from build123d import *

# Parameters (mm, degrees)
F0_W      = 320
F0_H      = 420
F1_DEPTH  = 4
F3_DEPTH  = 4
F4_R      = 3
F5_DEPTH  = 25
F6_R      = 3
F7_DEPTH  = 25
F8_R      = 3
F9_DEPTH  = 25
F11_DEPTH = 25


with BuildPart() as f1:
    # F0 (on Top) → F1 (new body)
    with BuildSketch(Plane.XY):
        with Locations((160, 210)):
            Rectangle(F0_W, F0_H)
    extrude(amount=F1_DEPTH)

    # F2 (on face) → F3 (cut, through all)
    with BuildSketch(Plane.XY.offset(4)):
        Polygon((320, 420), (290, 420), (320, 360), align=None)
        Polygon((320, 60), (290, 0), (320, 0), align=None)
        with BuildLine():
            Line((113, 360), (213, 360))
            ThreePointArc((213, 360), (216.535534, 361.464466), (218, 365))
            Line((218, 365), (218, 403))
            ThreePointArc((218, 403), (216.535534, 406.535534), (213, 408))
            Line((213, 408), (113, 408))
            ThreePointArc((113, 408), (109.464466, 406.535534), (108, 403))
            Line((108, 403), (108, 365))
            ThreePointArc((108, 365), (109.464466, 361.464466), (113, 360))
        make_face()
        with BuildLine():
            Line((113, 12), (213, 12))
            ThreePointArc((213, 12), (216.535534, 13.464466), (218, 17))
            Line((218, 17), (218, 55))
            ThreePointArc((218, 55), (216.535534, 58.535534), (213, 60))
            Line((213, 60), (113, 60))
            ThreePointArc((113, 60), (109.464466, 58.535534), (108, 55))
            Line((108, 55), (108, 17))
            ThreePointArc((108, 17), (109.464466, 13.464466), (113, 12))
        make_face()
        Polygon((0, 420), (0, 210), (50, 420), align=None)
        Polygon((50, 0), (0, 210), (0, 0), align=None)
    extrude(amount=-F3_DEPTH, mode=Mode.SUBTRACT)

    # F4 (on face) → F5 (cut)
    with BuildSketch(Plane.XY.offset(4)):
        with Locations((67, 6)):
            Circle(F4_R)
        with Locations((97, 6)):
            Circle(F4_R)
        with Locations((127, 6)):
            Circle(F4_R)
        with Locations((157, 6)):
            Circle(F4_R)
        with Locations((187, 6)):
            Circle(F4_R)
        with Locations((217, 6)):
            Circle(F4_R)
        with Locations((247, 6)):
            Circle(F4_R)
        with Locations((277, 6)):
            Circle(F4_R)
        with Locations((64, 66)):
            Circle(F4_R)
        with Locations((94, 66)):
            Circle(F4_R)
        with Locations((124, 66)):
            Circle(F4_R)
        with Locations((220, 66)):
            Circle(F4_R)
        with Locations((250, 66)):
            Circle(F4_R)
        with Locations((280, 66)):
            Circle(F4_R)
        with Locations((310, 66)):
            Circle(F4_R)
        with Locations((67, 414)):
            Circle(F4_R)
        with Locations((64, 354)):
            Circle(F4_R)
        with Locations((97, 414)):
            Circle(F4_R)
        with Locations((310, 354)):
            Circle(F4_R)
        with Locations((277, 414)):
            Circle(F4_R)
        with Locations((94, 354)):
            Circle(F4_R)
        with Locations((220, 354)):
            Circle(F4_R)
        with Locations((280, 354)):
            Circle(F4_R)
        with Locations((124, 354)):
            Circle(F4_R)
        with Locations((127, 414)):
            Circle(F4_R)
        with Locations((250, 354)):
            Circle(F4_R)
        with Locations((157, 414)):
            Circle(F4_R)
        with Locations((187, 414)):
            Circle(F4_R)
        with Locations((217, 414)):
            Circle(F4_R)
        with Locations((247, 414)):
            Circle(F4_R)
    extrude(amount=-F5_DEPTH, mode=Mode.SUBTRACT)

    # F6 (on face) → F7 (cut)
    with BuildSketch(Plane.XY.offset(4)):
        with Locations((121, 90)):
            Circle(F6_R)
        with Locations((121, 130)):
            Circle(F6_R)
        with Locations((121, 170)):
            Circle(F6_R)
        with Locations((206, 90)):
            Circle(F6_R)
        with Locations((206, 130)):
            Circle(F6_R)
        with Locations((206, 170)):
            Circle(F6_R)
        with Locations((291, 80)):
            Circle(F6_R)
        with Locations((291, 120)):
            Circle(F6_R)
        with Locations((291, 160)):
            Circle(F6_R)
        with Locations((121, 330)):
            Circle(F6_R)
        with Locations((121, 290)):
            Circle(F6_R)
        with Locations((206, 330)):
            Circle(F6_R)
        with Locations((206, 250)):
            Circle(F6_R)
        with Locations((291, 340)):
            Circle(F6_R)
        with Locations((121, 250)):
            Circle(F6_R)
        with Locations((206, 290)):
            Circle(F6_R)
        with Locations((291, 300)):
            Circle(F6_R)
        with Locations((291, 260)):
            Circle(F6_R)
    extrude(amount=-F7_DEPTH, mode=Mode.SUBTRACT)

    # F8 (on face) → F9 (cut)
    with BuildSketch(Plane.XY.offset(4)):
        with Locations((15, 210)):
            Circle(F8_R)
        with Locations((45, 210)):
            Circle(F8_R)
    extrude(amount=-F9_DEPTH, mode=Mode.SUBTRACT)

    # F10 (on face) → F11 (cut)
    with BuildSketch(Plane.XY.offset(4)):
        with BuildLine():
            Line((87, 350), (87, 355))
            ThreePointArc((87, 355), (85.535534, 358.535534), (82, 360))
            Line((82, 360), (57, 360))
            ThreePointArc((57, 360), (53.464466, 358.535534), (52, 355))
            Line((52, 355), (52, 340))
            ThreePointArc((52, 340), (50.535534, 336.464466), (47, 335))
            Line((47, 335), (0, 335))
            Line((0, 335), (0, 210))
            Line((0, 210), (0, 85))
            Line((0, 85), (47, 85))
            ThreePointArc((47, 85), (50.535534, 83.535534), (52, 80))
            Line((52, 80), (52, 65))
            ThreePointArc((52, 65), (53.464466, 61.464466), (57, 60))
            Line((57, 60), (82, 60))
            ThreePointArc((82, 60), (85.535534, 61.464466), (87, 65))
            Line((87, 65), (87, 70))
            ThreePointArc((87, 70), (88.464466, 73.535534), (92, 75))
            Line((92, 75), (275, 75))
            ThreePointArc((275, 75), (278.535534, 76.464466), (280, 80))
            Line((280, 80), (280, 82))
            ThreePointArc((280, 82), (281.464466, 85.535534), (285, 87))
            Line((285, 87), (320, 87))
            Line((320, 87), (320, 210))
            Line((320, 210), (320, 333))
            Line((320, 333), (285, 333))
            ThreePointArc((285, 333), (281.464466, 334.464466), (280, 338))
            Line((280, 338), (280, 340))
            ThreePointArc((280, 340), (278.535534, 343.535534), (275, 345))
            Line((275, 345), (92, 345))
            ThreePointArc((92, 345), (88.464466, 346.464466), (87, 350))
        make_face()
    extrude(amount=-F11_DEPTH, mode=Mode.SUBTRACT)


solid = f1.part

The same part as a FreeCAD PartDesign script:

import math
import FreeCAD as App
import Part
import Sketcher

V = App.Vector
Q = App.Units.Quantity

doc = App.newDocument("Part")
params = doc.addObject("Spreadsheet::Sheet", "Params")
for row, (alias, value) in enumerate([
    ("sketch1_width", "320 mm"),
    ("sketch1_height", "420 mm"),
    ("pad1_length", "4 mm"),
    ("sketch2_radius", "5 mm"),
    ("sketch2_width", "30 mm"),
    ("sketch2_width2", "100 mm"),
    ("sketch2_width3", "50 mm"),
    ("sketch2_height", "60 mm"),
    ("sketch3_diameter", "6 mm"),
    ("pocket2_length", "25 mm"),
    ("sketch4_diameter", "6 mm"),
    ("pocket3_length", "25 mm"),
    ("sketch5_diameter", "6 mm"),
    ("pocket4_length", "25 mm"),
    ("sketch6_radius", "5 mm"),
    ("sketch6_width", "25 mm"),
    ("sketch6_width2", "47 mm"),
    ("sketch6_width3", "183 mm"),
    ("sketch6_width4", "35 mm"),
    ("pocket5_length", "25 mm"),
], start=1):
    params.set(f"A{row}", alias)
    params.set(f"B{row}", "=" + value)
    params.setAlias(f"B{row}", alias)

body = doc.addObject("PartDesign::Body", "Body")
body.AllowCompound = True

sketch1 = doc.addObject("Sketcher::SketchObject", "Sketch")
body.addObject(sketch1)
sketch1.AttachmentSupport = (doc.XY_Plane, [""])
sketch1.MapMode = "FlatFace"
sketch1.addGeometry([
    Part.LineSegment(V(0, 420, 0), V(0, 0, 0)),
    Part.LineSegment(V(0, 0, 0), V(320, 0, 0)),
    Part.LineSegment(V(320, 0, 0), V(320, 420, 0)),
    Part.LineSegment(V(320, 420, 0), V(0, 420, 0)),
], False)
sketch1.addConstraint([
    Sketcher.Constraint("Coincident", 0, 2, 1, 1),
    Sketcher.Constraint("Coincident", 1, 2, 2, 1),
    Sketcher.Constraint("Coincident", 2, 2, 3, 1),
    Sketcher.Constraint("Coincident", 3, 2, 0, 1),
    Sketcher.Constraint("Vertical", 0),
    Sketcher.Constraint("Horizontal", 1),
    Sketcher.Constraint("Vertical", 2),
    Sketcher.Constraint("Horizontal", 3),
    Sketcher.Constraint("Coincident", 0, 2, -1, 1),
    Sketcher.Constraint("DistanceX", 1, 1, 1, 2, Q("320 mm")),
    Sketcher.Constraint("DistanceY", 0, 2, 0, 1, Q("420 mm")),
])
sketch1.setExpression("Constraints[9]", "Params.sketch1_width")
sketch1.setExpression("Constraints[10]", "Params.sketch1_height")
pad1 = doc.addObject("PartDesign::Pad", "Pad")
body.addObject(pad1)
pad1.Profile = sketch1
pad1.setExpression("Length", "Params.pad1_length")

sketch2 = doc.addObject("Sketcher::SketchObject", "Sketch001")
body.addObject(sketch2)
sketch2.AttachmentSupport = (doc.XY_Plane, [""])
sketch2.MapMode = "FlatFace"
sketch2.AttachmentOffset = App.Placement(V(0, 0, 4), App.Rotation())
sketch2.addGeometry([
    Part.LineSegment(V(320, 420, 0), V(290, 420, 0)),
    Part.LineSegment(V(290, 420, 0), V(320, 360, 0)),
    Part.LineSegment(V(320, 360, 0), V(320, 420, 0)),
    Part.LineSegment(V(320, 60, 0), V(290, 0, 0)),
    Part.LineSegment(V(290, 0, 0), V(320, 0, 0)),
    Part.LineSegment(V(320, 0, 0), V(320, 60, 0)),
    Part.LineSegment(V(113, 360, 0), V(213, 360, 0)),
    Part.ArcOfCircle(Part.Circle(V(213, 365, 0), V(0, 0, 1), 5), math.radians(-90), math.radians(0)),
    Part.LineSegment(V(218, 365, 0), V(218, 403, 0)),
    Part.ArcOfCircle(Part.Circle(V(213, 403, 0), V(0, 0, 1), 5), math.radians(0), math.radians(90)),
    Part.LineSegment(V(213, 408, 0), V(113, 408, 0)),
    Part.ArcOfCircle(Part.Circle(V(113, 403, 0), V(0, 0, 1), 5), math.radians(90), math.radians(180)),
    Part.LineSegment(V(108, 403, 0), V(108, 365, 0)),
    Part.ArcOfCircle(Part.Circle(V(113, 365, 0), V(0, 0, 1), 5), math.radians(180), math.radians(270)),
    Part.LineSegment(V(113, 12, 0), V(213, 12, 0)),
    Part.ArcOfCircle(Part.Circle(V(213, 17, 0), V(0, 0, 1), 5), math.radians(-90), math.radians(0)),
    Part.LineSegment(V(218, 17, 0), V(218, 55, 0)),
    Part.ArcOfCircle(Part.Circle(V(213, 55, 0), V(0, 0, 1), 5), math.radians(0), math.radians(90)),
    Part.LineSegment(V(213, 60, 0), V(113, 60, 0)),
    Part.ArcOfCircle(Part.Circle(V(113, 55, 0), V(0, 0, 1), 5), math.radians(90), math.radians(180)),
    Part.LineSegment(V(108, 55, 0), V(108, 17, 0)),
    Part.ArcOfCircle(Part.Circle(V(113, 17, 0), V(0, 0, 1), 5), math.radians(180), math.radians(270)),
    Part.LineSegment(V(0, 420, 0), V(0, 210, 0)),
    Part.LineSegment(V(0, 210, 0), V(50, 420, 0)),
    Part.LineSegment(V(50, 420, 0), V(0, 420, 0)),
    Part.LineSegment(V(50, 0, 0), V(0, 210, 0)),
    Part.LineSegment(V(0, 210, 0), V(0, 0, 0)),
    Part.LineSegment(V(0, 0, 0), V(50, 0, 0)),
], False)
sketch2.addConstraint([
    Sketcher.Constraint("Coincident", 0, 2, 1, 1),
    Sketcher.Constraint("Coincident", 1, 2, 2, 1),
    Sketcher.Constraint("Coincident", 2, 2, 0, 1),
    Sketcher.Constraint("Coincident", 3, 2, 4, 1),
    Sketcher.Constraint("Coincident", 4, 2, 5, 1),
    Sketcher.Constraint("Coincident", 5, 2, 3, 1),
    Sketcher.Constraint("Tangent", 6, 2, 7, 1),
    Sketcher.Constraint("Tangent", 7, 2, 8, 1),
    Sketcher.Constraint("Tangent", 8, 2, 9, 1),
    Sketcher.Constraint("Tangent", 9, 2, 10, 1),
    Sketcher.Constraint("Tangent", 10, 2, 11, 1),
    Sketcher.Constraint("Tangent", 11, 2, 12, 1),
    Sketcher.Constraint("Tangent", 12, 2, 13, 1),
    Sketcher.Constraint("Tangent", 13, 2, 6, 1),
    Sketcher.Constraint("Tangent", 14, 2, 15, 1),
    Sketcher.Constraint("Tangent", 15, 2, 16, 1),
    Sketcher.Constraint("Tangent", 16, 2, 17, 1),
    Sketcher.Constraint("Tangent", 17, 2, 18, 1),
    Sketcher.Constraint("Tangent", 18, 2, 19, 1),
    Sketcher.Constraint("Tangent", 19, 2, 20, 1),
    Sketcher.Constraint("Tangent", 20, 2, 21, 1),
    Sketcher.Constraint("Tangent", 21, 2, 14, 1),
    Sketcher.Constraint("Coincident", 22, 2, 23, 1),
    Sketcher.Constraint("Coincident", 23, 2, 24, 1),
    Sketcher.Constraint("Coincident", 24, 2, 22, 1),
    Sketcher.Constraint("Coincident", 25, 2, 26, 1),
    Sketcher.Constraint("Coincident", 26, 2, 27, 1),
    Sketcher.Constraint("Coincident", 27, 2, 25, 1),
    Sketcher.Constraint("Horizontal", 0),
    Sketcher.Constraint("Vertical", 2),
    Sketcher.Constraint("Horizontal", 4),
    Sketcher.Constraint("Vertical", 5),
    Sketcher.Constraint("Horizontal", 6),
    Sketcher.Constraint("Vertical", 8),
    Sketcher.Constraint("Horizontal", 10),
    Sketcher.Constraint("Vertical", 12),
    Sketcher.Constraint("Horizontal", 14),
    Sketcher.Constraint("Vertical", 16),
    Sketcher.Constraint("Horizontal", 18),
    Sketcher.Constraint("Vertical", 20),
    Sketcher.Constraint("Vertical", 22),
    Sketcher.Constraint("Horizontal", 24),
    Sketcher.Constraint("Vertical", 26),
    Sketcher.Constraint("Horizontal", 27),
    Sketcher.Constraint("Coincident", 26, 2, -1, 1),
    Sketcher.Constraint("Coincident", 25, 2, 22, 2),
    Sketcher.Constraint("Equal", 7, 9),
    Sketcher.Constraint("Equal", 9, 11),
    Sketcher.Constraint("Equal", 11, 13),
    Sketcher.Constraint("Equal", 13, 15),
    Sketcher.Constraint("Equal", 15, 17),
    Sketcher.Constraint("Equal", 17, 19),
    Sketcher.Constraint("Equal", 19, 21),
    Sketcher.Constraint("PointOnObject", 3, 2, -1),
    Sketcher.Constraint("Horizontal", 1, 2, 6, 2),
    Sketcher.Constraint("Horizontal", 5, 2, 17, 2),
    Sketcher.Constraint("Horizontal", 2, 2, 23, 2),
    Sketcher.Constraint("Vertical", 9, 3, 15, 3),
    Sketcher.Constraint("Vertical", 13, 3, 19, 3),
    Sketcher.Constraint("Vertical", 0, 2, 3, 2),
    Sketcher.Constraint("Vertical", 2, 2, 4, 2),
    Sketcher.Constraint("Vertical", 23, 2, 27, 2),
    Sketcher.Constraint("Equal", 2, 5),
    Sketcher.Constraint("Equal", 12, 16),
    Sketcher.Constraint("Equal", 22, 26),
    Sketcher.Constraint("Radius", 7, Q("5 mm")),
    Sketcher.Constraint("DistanceX", 0, 2, 0, 1, Q("30 mm")),
    Sketcher.Constraint("DistanceX", 6, 1, 6, 2, Q("100 mm")),
    Sketcher.Constraint("DistanceX", 24, 2, 24, 1, Q("50 mm")),
    Sketcher.Constraint("DistanceY", 2, 1, 2, 2, Q("60 mm")),
    Sketcher.Constraint("DistanceY", 8, 1, 8, 2, Q("38 mm")),
    Sketcher.Constraint("DistanceY", 22, 2, 22, 1, Q("210 mm")),
    Sketcher.Constraint("DistanceX", -1, 1, 7, 3, Q("213 mm")),
    Sketcher.Constraint("DistanceX", -1, 1, 0, 2, Q("290 mm")),
])
sketch2.setExpression("Constraints[65]", "Params.sketch2_radius")
sketch2.setExpression("Constraints[66]", "Params.sketch2_width")
sketch2.setExpression("Constraints[67]", "Params.sketch2_width2")
sketch2.setExpression("Constraints[68]", "Params.sketch2_width3")
sketch2.setExpression("Constraints[69]", "Params.sketch2_height")
pocket1 = doc.addObject("PartDesign::Pocket", "Pocket")
body.addObject(pocket1)
pocket1.Profile = sketch2
pocket1.Type = "ThroughAll"

sketch3 = doc.addObject("Sketcher::SketchObject", "Sketch002")
body.addObject(sketch3)
sketch3.AttachmentSupport = (doc.XY_Plane, [""])
sketch3.MapMode = "FlatFace"
sketch3.AttachmentOffset = App.Placement(V(0, 0, 4), App.Rotation())
sketch3.addGeometry([
    Part.Circle(V(67, 6, 0), V(0, 0, 1), 3),
    Part.Circle(V(97, 6, 0), V(0, 0, 1), 3),
    Part.Circle(V(127, 6, 0), V(0, 0, 1), 3),
    Part.Circle(V(157, 6, 0), V(0, 0, 1), 3),
    Part.Circle(V(187, 6, 0), V(0, 0, 1), 3),
    Part.Circle(V(217, 6, 0), V(0, 0, 1), 3),
    Part.Circle(V(247, 6, 0), V(0, 0, 1), 3),
    Part.Circle(V(277, 6, 0), V(0, 0, 1), 3),
    Part.Circle(V(64, 66, 0), V(0, 0, 1), 3),
    Part.Circle(V(94, 66, 0), V(0, 0, 1), 3),
    Part.Circle(V(124, 66, 0), V(0, 0, 1), 3),
    Part.Circle(V(220, 66, 0), V(0, 0, 1), 3),
    Part.Circle(V(250, 66, 0), V(0, 0, 1), 3),
    Part.Circle(V(280, 66, 0), V(0, 0, 1), 3),
    Part.Circle(V(310, 66, 0), V(0, 0, 1), 3),
    Part.Circle(V(67, 414, 0), V(0, 0, 1), 3),
    Part.Circle(V(64, 354, 0), V(0, 0, 1), 3),
    Part.Circle(V(97, 414, 0), V(0, 0, 1), 3),
    Part.Circle(V(310, 354, 0), V(0, 0, 1), 3),
    Part.Circle(V(277, 414, 0), V(0, 0, 1), 3),
    Part.Circle(V(94, 354, 0), V(0, 0, 1), 3),
    Part.Circle(V(220, 354, 0), V(0, 0, 1), 3),
    Part.Circle(V(280, 354, 0), V(0, 0, 1), 3),
    Part.Circle(V(124, 354, 0), V(0, 0, 1), 3),
    Part.Circle(V(127, 414, 0), V(0, 0, 1), 3),
    Part.Circle(V(250, 354, 0), V(0, 0, 1), 3),
    Part.Circle(V(157, 414, 0), V(0, 0, 1), 3),
    Part.Circle(V(187, 414, 0), V(0, 0, 1), 3),
    Part.Circle(V(217, 414, 0), V(0, 0, 1), 3),
    Part.Circle(V(247, 414, 0), V(0, 0, 1), 3),
], False)
sketch3.addConstraint([
    Sketcher.Constraint("Equal", 0, 1),
    Sketcher.Constraint("Equal", 1, 2),
    Sketcher.Constraint("Equal", 2, 3),
    Sketcher.Constraint("Equal", 3, 4),
    Sketcher.Constraint("Equal", 4, 5),
    Sketcher.Constraint("Equal", 5, 6),
    Sketcher.Constraint("Equal", 6, 7),
    Sketcher.Constraint("Equal", 7, 8),
    Sketcher.Constraint("Equal", 8, 9),
    Sketcher.Constraint("Equal", 9, 10),
    Sketcher.Constraint("Equal", 10, 11),
    Sketcher.Constraint("Equal", 11, 12),
    Sketcher.Constraint("Equal", 12, 13),
    Sketcher.Constraint("Equal", 13, 14),
    Sketcher.Constraint("Equal", 14, 15),
    Sketcher.Constraint("Equal", 15, 16),
    Sketcher.Constraint("Equal", 16, 17),
    Sketcher.Constraint("Equal", 17, 18),
    Sketcher.Constraint("Equal", 18, 19),
    Sketcher.Constraint("Equal", 19, 20),
    Sketcher.Constraint("Equal", 20, 21),
    Sketcher.Constraint("Equal", 21, 22),
    Sketcher.Constraint("Equal", 22, 23),
    Sketcher.Constraint("Equal", 23, 24),
    Sketcher.Constraint("Equal", 24, 25),
    Sketcher.Constraint("Equal", 25, 26),
    Sketcher.Constraint("Equal", 26, 27),
    Sketcher.Constraint("Equal", 27, 28),
    Sketcher.Constraint("Equal", 28, 29),
    Sketcher.Constraint("Horizontal", 0, 3, 1, 3),
    Sketcher.Constraint("Horizontal", 1, 3, 2, 3),
    Sketcher.Constraint("Horizontal", 2, 3, 3, 3),
    Sketcher.Constraint("Horizontal", 3, 3, 4, 3),
    Sketcher.Constraint("Horizontal", 4, 3, 5, 3),
    Sketcher.Constraint("Horizontal", 5, 3, 6, 3),
    Sketcher.Constraint("Horizontal", 6, 3, 7, 3),
    Sketcher.Constraint("Horizontal", 8, 3, 9, 3),
    Sketcher.Constraint("Horizontal", 9, 3, 10, 3),
    Sketcher.Constraint("Horizontal", 10, 3, 11, 3),
    Sketcher.Constraint("Horizontal", 11, 3, 12, 3),
    Sketcher.Constraint("Horizontal", 12, 3, 13, 3),
    Sketcher.Constraint("Horizontal", 13, 3, 14, 3),
    Sketcher.Constraint("Horizontal", 15, 3, 17, 3),
    Sketcher.Constraint("Horizontal", 16, 3, 18, 3),
    Sketcher.Constraint("Horizontal", 17, 3, 19, 3),
    Sketcher.Constraint("Horizontal", 18, 3, 20, 3),
    Sketcher.Constraint("Horizontal", 20, 3, 21, 3),
    Sketcher.Constraint("Horizontal", 21, 3, 22, 3),
    Sketcher.Constraint("Horizontal", 22, 3, 23, 3),
    Sketcher.Constraint("Horizontal", 19, 3, 24, 3),
    Sketcher.Constraint("Horizontal", 23, 3, 25, 3),
    Sketcher.Constraint("Horizontal", 24, 3, 26, 3),
    Sketcher.Constraint("Horizontal", 26, 3, 27, 3),
    Sketcher.Constraint("Horizontal", 27, 3, 28, 3),
    Sketcher.Constraint("Horizontal", 28, 3, 29, 3),
    Sketcher.Constraint("Vertical", 0, 3, 15, 3),
    Sketcher.Constraint("Vertical", 8, 3, 16, 3),
    Sketcher.Constraint("Vertical", 1, 3, 17, 3),
    Sketcher.Constraint("Vertical", 14, 3, 18, 3),
    Sketcher.Constraint("Vertical", 7, 3, 19, 3),
    Sketcher.Constraint("Vertical", 9, 3, 20, 3),
    Sketcher.Constraint("Vertical", 11, 3, 21, 3),
    Sketcher.Constraint("Vertical", 13, 3, 22, 3),
    Sketcher.Constraint("Vertical", 10, 3, 23, 3),
    Sketcher.Constraint("Vertical", 2, 3, 24, 3),
    Sketcher.Constraint("Vertical", 12, 3, 25, 3),
    Sketcher.Constraint("Vertical", 3, 3, 26, 3),
    Sketcher.Constraint("Vertical", 4, 3, 27, 3),
    Sketcher.Constraint("Vertical", 5, 3, 28, 3),
    Sketcher.Constraint("Vertical", 6, 3, 29, 3),
    Sketcher.Constraint("Diameter", 0, Q("6 mm")),
    Sketcher.Constraint("DistanceX", -1, 1, 0, 3, Q("67 mm")),
    Sketcher.Constraint("DistanceY", -1, 1, 0, 3, Q("6 mm")),
    Sketcher.Constraint("DistanceX", -1, 1, 1, 3, Q("97 mm")),
    Sketcher.Constraint("DistanceX", -1, 1, 2, 3, Q("127 mm")),
    Sketcher.Constraint("DistanceX", -1, 1, 3, 3, Q("157 mm")),
    Sketcher.Constraint("DistanceX", -1, 1, 4, 3, Q("187 mm")),
    Sketcher.Constraint("DistanceX", -1, 1, 5, 3, Q("217 mm")),
    Sketcher.Constraint("DistanceX", -1, 1, 6, 3, Q("247 mm")),
    Sketcher.Constraint("DistanceX", -1, 1, 7, 3, Q("277 mm")),
    Sketcher.Constraint("DistanceX", -1, 1, 8, 3, Q("64 mm")),
    Sketcher.Constraint("DistanceY", -1, 1, 8, 3, Q("66 mm")),
    Sketcher.Constraint("DistanceX", -1, 1, 9, 3, Q("94 mm")),
    Sketcher.Constraint("DistanceX", -1, 1, 10, 3, Q("124 mm")),
    Sketcher.Constraint("DistanceX", -1, 1, 11, 3, Q("220 mm")),
    Sketcher.Constraint("DistanceX", -1, 1, 12, 3, Q("250 mm")),
    Sketcher.Constraint("DistanceX", -1, 1, 13, 3, Q("280 mm")),
    Sketcher.Constraint("DistanceX", -1, 1, 14, 3, Q("310 mm")),
    Sketcher.Constraint("DistanceY", -1, 1, 15, 3, Q("414 mm")),
    Sketcher.Constraint("DistanceY", -1, 1, 16, 3, Q("354 mm")),
])
sketch3.setExpression("Constraints[70]", "Params.sketch3_diameter")
pocket2 = doc.addObject("PartDesign::Pocket", "Pocket001")
body.addObject(pocket2)
pocket2.Profile = sketch3
pocket2.setExpression("Length", "Params.pocket2_length")

sketch4 = doc.addObject("Sketcher::SketchObject", "Sketch003")
body.addObject(sketch4)
sketch4.AttachmentSupport = (doc.XY_Plane, [""])
sketch4.MapMode = "FlatFace"
sketch4.AttachmentOffset = App.Placement(V(0, 0, 4), App.Rotation())
sketch4.addGeometry([
    Part.Circle(V(121, 90, 0), V(0, 0, 1), 3),
    Part.Circle(V(121, 130, 0), V(0, 0, 1), 3),
    Part.Circle(V(121, 170, 0), V(0, 0, 1), 3),
    Part.Circle(V(206, 90, 0), V(0, 0, 1), 3),
    Part.Circle(V(206, 130, 0), V(0, 0, 1), 3),
    Part.Circle(V(206, 170, 0), V(0, 0, 1), 3),
    Part.Circle(V(291, 80, 0), V(0, 0, 1), 3),
    Part.Circle(V(291, 120, 0), V(0, 0, 1), 3),
    Part.Circle(V(291, 160, 0), V(0, 0, 1), 3),
    Part.Circle(V(121, 330, 0), V(0, 0, 1), 3),
    Part.Circle(V(121, 290, 0), V(0, 0, 1), 3),
    Part.Circle(V(206, 330, 0), V(0, 0, 1), 3),
    Part.Circle(V(206, 250, 0), V(0, 0, 1), 3),
    Part.Circle(V(291, 340, 0), V(0, 0, 1), 3),
    Part.Circle(V(121, 250, 0), V(0, 0, 1), 3),
    Part.Circle(V(206, 290, 0), V(0, 0, 1), 3),
    Part.Circle(V(291, 300, 0), V(0, 0, 1), 3),
    Part.Circle(V(291, 260, 0), V(0, 0, 1), 3),
], False)
sketch4.addConstraint([
    Sketcher.Constraint("Equal", 0, 1),
    Sketcher.Constraint("Equal", 1, 2),
    Sketcher.Constraint("Equal", 2, 3),
    Sketcher.Constraint("Equal", 3, 4),
    Sketcher.Constraint("Equal", 4, 5),
    Sketcher.Constraint("Equal", 5, 6),
    Sketcher.Constraint("Equal", 6, 7),
    Sketcher.Constraint("Equal", 7, 8),
    Sketcher.Constraint("Equal", 8, 9),
    Sketcher.Constraint("Equal", 9, 10),
    Sketcher.Constraint("Equal", 10, 11),
    Sketcher.Constraint("Equal", 11, 12),
    Sketcher.Constraint("Equal", 12, 13),
    Sketcher.Constraint("Equal", 13, 14),
    Sketcher.Constraint("Equal", 14, 15),
    Sketcher.Constraint("Equal", 15, 16),
    Sketcher.Constraint("Equal", 16, 17),
    Sketcher.Constraint("Horizontal", 0, 3, 3, 3),
    Sketcher.Constraint("Horizontal", 1, 3, 4, 3),
    Sketcher.Constraint("Horizontal", 2, 3, 5, 3),
    Sketcher.Constraint("Horizontal", 9, 3, 11, 3),
    Sketcher.Constraint("Horizontal", 12, 3, 14, 3),
    Sketcher.Constraint("Horizontal", 10, 3, 15, 3),
    Sketcher.Constraint("Vertical", 0, 3, 1, 3),
    Sketcher.Constraint("Vertical", 1, 3, 2, 3),
    Sketcher.Constraint("Vertical", 3, 3, 4, 3),
    Sketcher.Constraint("Vertical", 4, 3, 5, 3),
    Sketcher.Constraint("Vertical", 6, 3, 7, 3),
    Sketcher.Constraint("Vertical", 7, 3, 8, 3),
    Sketcher.Constraint("Vertical", 2, 3, 9, 3),
    Sketcher.Constraint("Vertical", 9, 3, 10, 3),
    Sketcher.Constraint("Vertical", 5, 3, 11, 3),
    Sketcher.Constraint("Vertical", 11, 3, 12, 3),
    Sketcher.Constraint("Vertical", 8, 3, 13, 3),
    Sketcher.Constraint("Vertical", 10, 3, 14, 3),
    Sketcher.Constraint("Vertical", 12, 3, 15, 3),
    Sketcher.Constraint("Vertical", 13, 3, 16, 3),
    Sketcher.Constraint("Vertical", 16, 3, 17, 3),
    Sketcher.Constraint("Diameter", 0, Q("6 mm")),
    Sketcher.Constraint("DistanceX", -1, 1, 0, 3, Q("121 mm")),
    Sketcher.Constraint("DistanceY", -1, 1, 0, 3, Q("90 mm")),
    Sketcher.Constraint("DistanceY", -1, 1, 1, 3, Q("130 mm")),
    Sketcher.Constraint("DistanceY", -1, 1, 2, 3, Q("170 mm")),
    Sketcher.Constraint("DistanceX", -1, 1, 3, 3, Q("206 mm")),
    Sketcher.Constraint("DistanceX", -1, 1, 6, 3, Q("291 mm")),
    Sketcher.Constraint("DistanceY", -1, 1, 6, 3, Q("80 mm")),
    Sketcher.Constraint("DistanceY", -1, 1, 7, 3, Q("120 mm")),
    Sketcher.Constraint("DistanceY", -1, 1, 8, 3, Q("160 mm")),
    Sketcher.Constraint("DistanceY", -1, 1, 9, 3, Q("330 mm")),
    Sketcher.Constraint("DistanceY", -1, 1, 10, 3, Q("290 mm")),
    Sketcher.Constraint("DistanceY", -1, 1, 12, 3, Q("250 mm")),
    Sketcher.Constraint("DistanceY", -1, 1, 13, 3, Q("340 mm")),
    Sketcher.Constraint("DistanceY", -1, 1, 16, 3, Q("300 mm")),
    Sketcher.Constraint("DistanceY", -1, 1, 17, 3, Q("260 mm")),
])
sketch4.setExpression("Constraints[38]", "Params.sketch4_diameter")
pocket3 = doc.addObject("PartDesign::Pocket", "Pocket002")
body.addObject(pocket3)
pocket3.Profile = sketch4
pocket3.setExpression("Length", "Params.pocket3_length")

sketch5 = doc.addObject("Sketcher::SketchObject", "Sketch004")
body.addObject(sketch5)
sketch5.AttachmentSupport = (doc.XY_Plane, [""])
sketch5.MapMode = "FlatFace"
sketch5.AttachmentOffset = App.Placement(V(0, 0, 4), App.Rotation())
sketch5.addGeometry([
    Part.Circle(V(15, 210, 0), V(0, 0, 1), 3),
    Part.Circle(V(45, 210, 0), V(0, 0, 1), 3),
], False)
sketch5.addConstraint([
    Sketcher.Constraint("Equal", 0, 1),
    Sketcher.Constraint("Horizontal", 0, 3, 1, 3),
    Sketcher.Constraint("Diameter", 0, Q("6 mm")),
    Sketcher.Constraint("DistanceX", -1, 1, 0, 3, Q("15 mm")),
    Sketcher.Constraint("DistanceY", -1, 1, 0, 3, Q("210 mm")),
    Sketcher.Constraint("DistanceX", -1, 1, 1, 3, Q("45 mm")),
])
sketch5.setExpression("Constraints[2]", "Params.sketch5_diameter")
pocket4 = doc.addObject("PartDesign::Pocket", "Pocket003")
body.addObject(pocket4)
pocket4.Profile = sketch5
pocket4.setExpression("Length", "Params.pocket4_length")

sketch6 = doc.addObject("Sketcher::SketchObject", "Sketch005")
body.addObject(sketch6)
sketch6.AttachmentSupport = (doc.XY_Plane, [""])
sketch6.MapMode = "FlatFace"
sketch6.AttachmentOffset = App.Placement(V(0, 0, 4), App.Rotation())
sketch6.addGeometry([
    Part.LineSegment(V(87, 350, 0), V(87, 355, 0)),
    Part.ArcOfCircle(Part.Circle(V(82, 355, 0), V(0, 0, 1), 5), math.radians(0), math.radians(90)),
    Part.LineSegment(V(82, 360, 0), V(57, 360, 0)),
    Part.ArcOfCircle(Part.Circle(V(57, 355, 0), V(0, 0, 1), 5), math.radians(90), math.radians(180)),
    Part.LineSegment(V(52, 355, 0), V(52, 340, 0)),
    Part.ArcOfCircle(Part.Circle(V(47, 340, 0), V(0, 0, 1), 5), math.radians(-90), math.radians(0)),
    Part.LineSegment(V(47, 335, 0), V(0, 335, 0)),
    Part.LineSegment(V(0, 335, 0), V(0, 85, 0)),
    Part.LineSegment(V(0, 85, 0), V(47, 85, 0)),
    Part.ArcOfCircle(Part.Circle(V(47, 80, 0), V(0, 0, 1), 5), math.radians(0), math.radians(90)),
    Part.LineSegment(V(52, 80, 0), V(52, 65, 0)),
    Part.ArcOfCircle(Part.Circle(V(57, 65, 0), V(0, 0, 1), 5), math.radians(180), math.radians(270)),
    Part.LineSegment(V(57, 60, 0), V(82, 60, 0)),
    Part.ArcOfCircle(Part.Circle(V(82, 65, 0), V(0, 0, 1), 5), math.radians(-90), math.radians(0)),
    Part.LineSegment(V(87, 65, 0), V(87, 70, 0)),
    Part.ArcOfCircle(Part.Circle(V(92, 70, 0), V(0, 0, 1), 5), math.radians(90), math.radians(180)),
    Part.LineSegment(V(92, 75, 0), V(275, 75, 0)),
    Part.ArcOfCircle(Part.Circle(V(275, 80, 0), V(0, 0, 1), 5), math.radians(-90), math.radians(0)),
    Part.LineSegment(V(280, 80, 0), V(280, 82, 0)),
    Part.ArcOfCircle(Part.Circle(V(285, 82, 0), V(0, 0, 1), 5), math.radians(90), math.radians(180)),
    Part.LineSegment(V(285, 87, 0), V(320, 87, 0)),
    Part.LineSegment(V(320, 87, 0), V(320, 333, 0)),
    Part.LineSegment(V(320, 333, 0), V(285, 333, 0)),
    Part.ArcOfCircle(Part.Circle(V(285, 338, 0), V(0, 0, 1), 5), math.radians(180), math.radians(270)),
    Part.LineSegment(V(280, 338, 0), V(280, 340, 0)),
    Part.ArcOfCircle(Part.Circle(V(275, 340, 0), V(0, 0, 1), 5), math.radians(0), math.radians(90)),
    Part.LineSegment(V(275, 345, 0), V(92, 345, 0)),
    Part.ArcOfCircle(Part.Circle(V(92, 350, 0), V(0, 0, 1), 5), math.radians(180), math.radians(270)),
], False)
sketch6.addConstraint([
    Sketcher.Constraint("Tangent", 0, 2, 1, 1),
    Sketcher.Constraint("Tangent", 1, 2, 2, 1),
    Sketcher.Constraint("Tangent", 2, 2, 3, 1),
    Sketcher.Constraint("Tangent", 3, 2, 4, 1),
    Sketcher.Constraint("Tangent", 4, 2, 5, 2),
    Sketcher.Constraint("Tangent", 5, 1, 6, 1),
    Sketcher.Constraint("Coincident", 6, 2, 7, 1),
    Sketcher.Constraint("Coincident", 7, 2, 8, 1),
    Sketcher.Constraint("Tangent", 8, 2, 9, 2),
    Sketcher.Constraint("Tangent", 9, 1, 10, 1),
    Sketcher.Constraint("Tangent", 10, 2, 11, 1),
    Sketcher.Constraint("Tangent", 11, 2, 12, 1),
    Sketcher.Constraint("Tangent", 12, 2, 13, 1),
    Sketcher.Constraint("Tangent", 13, 2, 14, 1),
    Sketcher.Constraint("Tangent", 14, 2, 15, 2),
    Sketcher.Constraint("Tangent", 15, 1, 16, 1),
    Sketcher.Constraint("Tangent", 16, 2, 17, 1),
    Sketcher.Constraint("Tangent", 17, 2, 18, 1),
    Sketcher.Constraint("Tangent", 18, 2, 19, 2),
    Sketcher.Constraint("Tangent", 19, 1, 20, 1),
    Sketcher.Constraint("Coincident", 20, 2, 21, 1),
    Sketcher.Constraint("Coincident", 21, 2, 22, 1),
    Sketcher.Constraint("Tangent", 22, 2, 23, 2),
    Sketcher.Constraint("Tangent", 23, 1, 24, 1),
    Sketcher.Constraint("Tangent", 24, 2, 25, 1),
    Sketcher.Constraint("Tangent", 25, 2, 26, 1),
    Sketcher.Constraint("Tangent", 26, 2, 27, 2),
    Sketcher.Constraint("Tangent", 27, 1, 0, 1),
    Sketcher.Constraint("Vertical", 0),
    Sketcher.Constraint("Horizontal", 2),
    Sketcher.Constraint("Vertical", 4),
    Sketcher.Constraint("Horizontal", 6),
    Sketcher.Constraint("Vertical", 7),
    Sketcher.Constraint("Horizontal", 8),
    Sketcher.Constraint("Vertical", 10),
    Sketcher.Constraint("Horizontal", 12),
    Sketcher.Constraint("Vertical", 14),
    Sketcher.Constraint("Horizontal", 16),
    Sketcher.Constraint("Vertical", 18),
    Sketcher.Constraint("Horizontal", 20),
    Sketcher.Constraint("Vertical", 21),
    Sketcher.Constraint("Horizontal", 22),
    Sketcher.Constraint("Vertical", 24),
    Sketcher.Constraint("Horizontal", 26),
    Sketcher.Constraint("Equal", 1, 3),
    Sketcher.Constraint("Equal", 3, 5),
    Sketcher.Constraint("Equal", 5, 9),
    Sketcher.Constraint("Equal", 9, 11),
    Sketcher.Constraint("Equal", 11, 13),
    Sketcher.Constraint("Equal", 13, 15),
    Sketcher.Constraint("Equal", 15, 17),
    Sketcher.Constraint("Equal", 17, 19),
    Sketcher.Constraint("Equal", 19, 23),
    Sketcher.Constraint("Equal", 23, 25),
    Sketcher.Constraint("Equal", 25, 27),
    Sketcher.Constraint("PointOnObject", 6, 2, -2),
    Sketcher.Constraint("Horizontal", 9, 3, 17, 3),
    Sketcher.Constraint("Horizontal", 5, 3, 25, 3),
    Sketcher.Constraint("Vertical", 5, 3, 9, 3),
    Sketcher.Constraint("Vertical", 1, 3, 13, 3),
    Sketcher.Constraint("Vertical", 19, 3, 23, 3),
    Sketcher.Constraint("Equal", 4, 10),
    Sketcher.Constraint("Equal", 18, 24),
    Sketcher.Constraint("Radius", 1, Q("5 mm")),
    Sketcher.Constraint("DistanceX", 2, 2, 2, 1, Q("25 mm")),
    Sketcher.Constraint("DistanceX", 6, 2, 6, 1, Q("47 mm")),
    Sketcher.Constraint("DistanceX", 16, 1, 16, 2, Q("183 mm")),
    Sketcher.Constraint("DistanceX", 20, 1, 20, 2, Q("35 mm")),
    Sketcher.Constraint("DistanceY", 0, 1, 0, 2, Q("5 mm")),
    Sketcher.Constraint("DistanceY", 7, 2, 7, 1, Q("250 mm")),
    Sketcher.Constraint("DistanceY", 18, 1, 18, 2, Q("2 mm")),
    Sketcher.Constraint("DistanceY", -1, 1, 1, 3, Q("355 mm")),
])
sketch6.setExpression("Constraints[63]", "Params.sketch6_radius")
sketch6.setExpression("Constraints[64]", "Params.sketch6_width")
sketch6.setExpression("Constraints[65]", "Params.sketch6_width2")
sketch6.setExpression("Constraints[66]", "Params.sketch6_width3")
sketch6.setExpression("Constraints[67]", "Params.sketch6_width4")
pocket5 = doc.addObject("PartDesign::Pocket", "Pocket004")
body.addObject(pocket5)
pocket5.Profile = sketch6
pocket5.setExpression("Length", "Params.pocket5_length")

doc.recompute()
